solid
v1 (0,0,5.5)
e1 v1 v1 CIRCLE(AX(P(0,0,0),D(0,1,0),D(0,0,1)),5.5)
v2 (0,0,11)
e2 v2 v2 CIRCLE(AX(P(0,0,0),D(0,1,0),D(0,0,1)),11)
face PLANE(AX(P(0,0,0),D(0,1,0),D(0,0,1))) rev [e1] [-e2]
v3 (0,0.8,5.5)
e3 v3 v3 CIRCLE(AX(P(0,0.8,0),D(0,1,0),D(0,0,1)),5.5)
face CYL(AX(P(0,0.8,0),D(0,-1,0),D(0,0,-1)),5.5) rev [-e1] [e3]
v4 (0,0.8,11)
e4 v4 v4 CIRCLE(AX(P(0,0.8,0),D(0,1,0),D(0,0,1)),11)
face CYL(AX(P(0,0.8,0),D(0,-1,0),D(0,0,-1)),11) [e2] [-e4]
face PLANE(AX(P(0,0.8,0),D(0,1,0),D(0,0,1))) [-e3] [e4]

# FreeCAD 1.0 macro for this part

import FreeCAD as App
import Part
import Sketcher

V = App.Vector
Q = App.Units.Quantity

doc = App.newDocument("Part")
body = doc.addObject("PartDesign::Body", "Body")

# Sketch on XZ plane
sketch1 = doc.addObject("Sketcher::SketchObject", "Sketch")
body.addObject(sketch1)
sketch1.AttachmentSupport = (doc.XZ_Plane, [""])
sketch1.MapMode = "FlatFace"
sketch1.addGeometry([
    Part.Circle(V(0, 0, 0), V(0, 0, 1), 11),
    Part.Circle(V(0, 0, 0), V(0, 0, 1), 5.5),
], False)
sketch1.addConstraint([
    Sketcher.Constraint("Coincident", 0, 3, -1, 1),
    Sketcher.Constraint("Coincident", 1, 3, -1, 1),
    Sketcher.Constraint("Diameter", 0, Q("22 mm")),
    Sketcher.Constraint("Diameter", 1, Q("11 mm")),
])
pad1 = doc.addObject("PartDesign::Pad", "Pad")
body.addObject(pad1)
pad1.Profile = sketch1
pad1.Length = 0.8
pad1.Reversed = True

doc.recompute()
